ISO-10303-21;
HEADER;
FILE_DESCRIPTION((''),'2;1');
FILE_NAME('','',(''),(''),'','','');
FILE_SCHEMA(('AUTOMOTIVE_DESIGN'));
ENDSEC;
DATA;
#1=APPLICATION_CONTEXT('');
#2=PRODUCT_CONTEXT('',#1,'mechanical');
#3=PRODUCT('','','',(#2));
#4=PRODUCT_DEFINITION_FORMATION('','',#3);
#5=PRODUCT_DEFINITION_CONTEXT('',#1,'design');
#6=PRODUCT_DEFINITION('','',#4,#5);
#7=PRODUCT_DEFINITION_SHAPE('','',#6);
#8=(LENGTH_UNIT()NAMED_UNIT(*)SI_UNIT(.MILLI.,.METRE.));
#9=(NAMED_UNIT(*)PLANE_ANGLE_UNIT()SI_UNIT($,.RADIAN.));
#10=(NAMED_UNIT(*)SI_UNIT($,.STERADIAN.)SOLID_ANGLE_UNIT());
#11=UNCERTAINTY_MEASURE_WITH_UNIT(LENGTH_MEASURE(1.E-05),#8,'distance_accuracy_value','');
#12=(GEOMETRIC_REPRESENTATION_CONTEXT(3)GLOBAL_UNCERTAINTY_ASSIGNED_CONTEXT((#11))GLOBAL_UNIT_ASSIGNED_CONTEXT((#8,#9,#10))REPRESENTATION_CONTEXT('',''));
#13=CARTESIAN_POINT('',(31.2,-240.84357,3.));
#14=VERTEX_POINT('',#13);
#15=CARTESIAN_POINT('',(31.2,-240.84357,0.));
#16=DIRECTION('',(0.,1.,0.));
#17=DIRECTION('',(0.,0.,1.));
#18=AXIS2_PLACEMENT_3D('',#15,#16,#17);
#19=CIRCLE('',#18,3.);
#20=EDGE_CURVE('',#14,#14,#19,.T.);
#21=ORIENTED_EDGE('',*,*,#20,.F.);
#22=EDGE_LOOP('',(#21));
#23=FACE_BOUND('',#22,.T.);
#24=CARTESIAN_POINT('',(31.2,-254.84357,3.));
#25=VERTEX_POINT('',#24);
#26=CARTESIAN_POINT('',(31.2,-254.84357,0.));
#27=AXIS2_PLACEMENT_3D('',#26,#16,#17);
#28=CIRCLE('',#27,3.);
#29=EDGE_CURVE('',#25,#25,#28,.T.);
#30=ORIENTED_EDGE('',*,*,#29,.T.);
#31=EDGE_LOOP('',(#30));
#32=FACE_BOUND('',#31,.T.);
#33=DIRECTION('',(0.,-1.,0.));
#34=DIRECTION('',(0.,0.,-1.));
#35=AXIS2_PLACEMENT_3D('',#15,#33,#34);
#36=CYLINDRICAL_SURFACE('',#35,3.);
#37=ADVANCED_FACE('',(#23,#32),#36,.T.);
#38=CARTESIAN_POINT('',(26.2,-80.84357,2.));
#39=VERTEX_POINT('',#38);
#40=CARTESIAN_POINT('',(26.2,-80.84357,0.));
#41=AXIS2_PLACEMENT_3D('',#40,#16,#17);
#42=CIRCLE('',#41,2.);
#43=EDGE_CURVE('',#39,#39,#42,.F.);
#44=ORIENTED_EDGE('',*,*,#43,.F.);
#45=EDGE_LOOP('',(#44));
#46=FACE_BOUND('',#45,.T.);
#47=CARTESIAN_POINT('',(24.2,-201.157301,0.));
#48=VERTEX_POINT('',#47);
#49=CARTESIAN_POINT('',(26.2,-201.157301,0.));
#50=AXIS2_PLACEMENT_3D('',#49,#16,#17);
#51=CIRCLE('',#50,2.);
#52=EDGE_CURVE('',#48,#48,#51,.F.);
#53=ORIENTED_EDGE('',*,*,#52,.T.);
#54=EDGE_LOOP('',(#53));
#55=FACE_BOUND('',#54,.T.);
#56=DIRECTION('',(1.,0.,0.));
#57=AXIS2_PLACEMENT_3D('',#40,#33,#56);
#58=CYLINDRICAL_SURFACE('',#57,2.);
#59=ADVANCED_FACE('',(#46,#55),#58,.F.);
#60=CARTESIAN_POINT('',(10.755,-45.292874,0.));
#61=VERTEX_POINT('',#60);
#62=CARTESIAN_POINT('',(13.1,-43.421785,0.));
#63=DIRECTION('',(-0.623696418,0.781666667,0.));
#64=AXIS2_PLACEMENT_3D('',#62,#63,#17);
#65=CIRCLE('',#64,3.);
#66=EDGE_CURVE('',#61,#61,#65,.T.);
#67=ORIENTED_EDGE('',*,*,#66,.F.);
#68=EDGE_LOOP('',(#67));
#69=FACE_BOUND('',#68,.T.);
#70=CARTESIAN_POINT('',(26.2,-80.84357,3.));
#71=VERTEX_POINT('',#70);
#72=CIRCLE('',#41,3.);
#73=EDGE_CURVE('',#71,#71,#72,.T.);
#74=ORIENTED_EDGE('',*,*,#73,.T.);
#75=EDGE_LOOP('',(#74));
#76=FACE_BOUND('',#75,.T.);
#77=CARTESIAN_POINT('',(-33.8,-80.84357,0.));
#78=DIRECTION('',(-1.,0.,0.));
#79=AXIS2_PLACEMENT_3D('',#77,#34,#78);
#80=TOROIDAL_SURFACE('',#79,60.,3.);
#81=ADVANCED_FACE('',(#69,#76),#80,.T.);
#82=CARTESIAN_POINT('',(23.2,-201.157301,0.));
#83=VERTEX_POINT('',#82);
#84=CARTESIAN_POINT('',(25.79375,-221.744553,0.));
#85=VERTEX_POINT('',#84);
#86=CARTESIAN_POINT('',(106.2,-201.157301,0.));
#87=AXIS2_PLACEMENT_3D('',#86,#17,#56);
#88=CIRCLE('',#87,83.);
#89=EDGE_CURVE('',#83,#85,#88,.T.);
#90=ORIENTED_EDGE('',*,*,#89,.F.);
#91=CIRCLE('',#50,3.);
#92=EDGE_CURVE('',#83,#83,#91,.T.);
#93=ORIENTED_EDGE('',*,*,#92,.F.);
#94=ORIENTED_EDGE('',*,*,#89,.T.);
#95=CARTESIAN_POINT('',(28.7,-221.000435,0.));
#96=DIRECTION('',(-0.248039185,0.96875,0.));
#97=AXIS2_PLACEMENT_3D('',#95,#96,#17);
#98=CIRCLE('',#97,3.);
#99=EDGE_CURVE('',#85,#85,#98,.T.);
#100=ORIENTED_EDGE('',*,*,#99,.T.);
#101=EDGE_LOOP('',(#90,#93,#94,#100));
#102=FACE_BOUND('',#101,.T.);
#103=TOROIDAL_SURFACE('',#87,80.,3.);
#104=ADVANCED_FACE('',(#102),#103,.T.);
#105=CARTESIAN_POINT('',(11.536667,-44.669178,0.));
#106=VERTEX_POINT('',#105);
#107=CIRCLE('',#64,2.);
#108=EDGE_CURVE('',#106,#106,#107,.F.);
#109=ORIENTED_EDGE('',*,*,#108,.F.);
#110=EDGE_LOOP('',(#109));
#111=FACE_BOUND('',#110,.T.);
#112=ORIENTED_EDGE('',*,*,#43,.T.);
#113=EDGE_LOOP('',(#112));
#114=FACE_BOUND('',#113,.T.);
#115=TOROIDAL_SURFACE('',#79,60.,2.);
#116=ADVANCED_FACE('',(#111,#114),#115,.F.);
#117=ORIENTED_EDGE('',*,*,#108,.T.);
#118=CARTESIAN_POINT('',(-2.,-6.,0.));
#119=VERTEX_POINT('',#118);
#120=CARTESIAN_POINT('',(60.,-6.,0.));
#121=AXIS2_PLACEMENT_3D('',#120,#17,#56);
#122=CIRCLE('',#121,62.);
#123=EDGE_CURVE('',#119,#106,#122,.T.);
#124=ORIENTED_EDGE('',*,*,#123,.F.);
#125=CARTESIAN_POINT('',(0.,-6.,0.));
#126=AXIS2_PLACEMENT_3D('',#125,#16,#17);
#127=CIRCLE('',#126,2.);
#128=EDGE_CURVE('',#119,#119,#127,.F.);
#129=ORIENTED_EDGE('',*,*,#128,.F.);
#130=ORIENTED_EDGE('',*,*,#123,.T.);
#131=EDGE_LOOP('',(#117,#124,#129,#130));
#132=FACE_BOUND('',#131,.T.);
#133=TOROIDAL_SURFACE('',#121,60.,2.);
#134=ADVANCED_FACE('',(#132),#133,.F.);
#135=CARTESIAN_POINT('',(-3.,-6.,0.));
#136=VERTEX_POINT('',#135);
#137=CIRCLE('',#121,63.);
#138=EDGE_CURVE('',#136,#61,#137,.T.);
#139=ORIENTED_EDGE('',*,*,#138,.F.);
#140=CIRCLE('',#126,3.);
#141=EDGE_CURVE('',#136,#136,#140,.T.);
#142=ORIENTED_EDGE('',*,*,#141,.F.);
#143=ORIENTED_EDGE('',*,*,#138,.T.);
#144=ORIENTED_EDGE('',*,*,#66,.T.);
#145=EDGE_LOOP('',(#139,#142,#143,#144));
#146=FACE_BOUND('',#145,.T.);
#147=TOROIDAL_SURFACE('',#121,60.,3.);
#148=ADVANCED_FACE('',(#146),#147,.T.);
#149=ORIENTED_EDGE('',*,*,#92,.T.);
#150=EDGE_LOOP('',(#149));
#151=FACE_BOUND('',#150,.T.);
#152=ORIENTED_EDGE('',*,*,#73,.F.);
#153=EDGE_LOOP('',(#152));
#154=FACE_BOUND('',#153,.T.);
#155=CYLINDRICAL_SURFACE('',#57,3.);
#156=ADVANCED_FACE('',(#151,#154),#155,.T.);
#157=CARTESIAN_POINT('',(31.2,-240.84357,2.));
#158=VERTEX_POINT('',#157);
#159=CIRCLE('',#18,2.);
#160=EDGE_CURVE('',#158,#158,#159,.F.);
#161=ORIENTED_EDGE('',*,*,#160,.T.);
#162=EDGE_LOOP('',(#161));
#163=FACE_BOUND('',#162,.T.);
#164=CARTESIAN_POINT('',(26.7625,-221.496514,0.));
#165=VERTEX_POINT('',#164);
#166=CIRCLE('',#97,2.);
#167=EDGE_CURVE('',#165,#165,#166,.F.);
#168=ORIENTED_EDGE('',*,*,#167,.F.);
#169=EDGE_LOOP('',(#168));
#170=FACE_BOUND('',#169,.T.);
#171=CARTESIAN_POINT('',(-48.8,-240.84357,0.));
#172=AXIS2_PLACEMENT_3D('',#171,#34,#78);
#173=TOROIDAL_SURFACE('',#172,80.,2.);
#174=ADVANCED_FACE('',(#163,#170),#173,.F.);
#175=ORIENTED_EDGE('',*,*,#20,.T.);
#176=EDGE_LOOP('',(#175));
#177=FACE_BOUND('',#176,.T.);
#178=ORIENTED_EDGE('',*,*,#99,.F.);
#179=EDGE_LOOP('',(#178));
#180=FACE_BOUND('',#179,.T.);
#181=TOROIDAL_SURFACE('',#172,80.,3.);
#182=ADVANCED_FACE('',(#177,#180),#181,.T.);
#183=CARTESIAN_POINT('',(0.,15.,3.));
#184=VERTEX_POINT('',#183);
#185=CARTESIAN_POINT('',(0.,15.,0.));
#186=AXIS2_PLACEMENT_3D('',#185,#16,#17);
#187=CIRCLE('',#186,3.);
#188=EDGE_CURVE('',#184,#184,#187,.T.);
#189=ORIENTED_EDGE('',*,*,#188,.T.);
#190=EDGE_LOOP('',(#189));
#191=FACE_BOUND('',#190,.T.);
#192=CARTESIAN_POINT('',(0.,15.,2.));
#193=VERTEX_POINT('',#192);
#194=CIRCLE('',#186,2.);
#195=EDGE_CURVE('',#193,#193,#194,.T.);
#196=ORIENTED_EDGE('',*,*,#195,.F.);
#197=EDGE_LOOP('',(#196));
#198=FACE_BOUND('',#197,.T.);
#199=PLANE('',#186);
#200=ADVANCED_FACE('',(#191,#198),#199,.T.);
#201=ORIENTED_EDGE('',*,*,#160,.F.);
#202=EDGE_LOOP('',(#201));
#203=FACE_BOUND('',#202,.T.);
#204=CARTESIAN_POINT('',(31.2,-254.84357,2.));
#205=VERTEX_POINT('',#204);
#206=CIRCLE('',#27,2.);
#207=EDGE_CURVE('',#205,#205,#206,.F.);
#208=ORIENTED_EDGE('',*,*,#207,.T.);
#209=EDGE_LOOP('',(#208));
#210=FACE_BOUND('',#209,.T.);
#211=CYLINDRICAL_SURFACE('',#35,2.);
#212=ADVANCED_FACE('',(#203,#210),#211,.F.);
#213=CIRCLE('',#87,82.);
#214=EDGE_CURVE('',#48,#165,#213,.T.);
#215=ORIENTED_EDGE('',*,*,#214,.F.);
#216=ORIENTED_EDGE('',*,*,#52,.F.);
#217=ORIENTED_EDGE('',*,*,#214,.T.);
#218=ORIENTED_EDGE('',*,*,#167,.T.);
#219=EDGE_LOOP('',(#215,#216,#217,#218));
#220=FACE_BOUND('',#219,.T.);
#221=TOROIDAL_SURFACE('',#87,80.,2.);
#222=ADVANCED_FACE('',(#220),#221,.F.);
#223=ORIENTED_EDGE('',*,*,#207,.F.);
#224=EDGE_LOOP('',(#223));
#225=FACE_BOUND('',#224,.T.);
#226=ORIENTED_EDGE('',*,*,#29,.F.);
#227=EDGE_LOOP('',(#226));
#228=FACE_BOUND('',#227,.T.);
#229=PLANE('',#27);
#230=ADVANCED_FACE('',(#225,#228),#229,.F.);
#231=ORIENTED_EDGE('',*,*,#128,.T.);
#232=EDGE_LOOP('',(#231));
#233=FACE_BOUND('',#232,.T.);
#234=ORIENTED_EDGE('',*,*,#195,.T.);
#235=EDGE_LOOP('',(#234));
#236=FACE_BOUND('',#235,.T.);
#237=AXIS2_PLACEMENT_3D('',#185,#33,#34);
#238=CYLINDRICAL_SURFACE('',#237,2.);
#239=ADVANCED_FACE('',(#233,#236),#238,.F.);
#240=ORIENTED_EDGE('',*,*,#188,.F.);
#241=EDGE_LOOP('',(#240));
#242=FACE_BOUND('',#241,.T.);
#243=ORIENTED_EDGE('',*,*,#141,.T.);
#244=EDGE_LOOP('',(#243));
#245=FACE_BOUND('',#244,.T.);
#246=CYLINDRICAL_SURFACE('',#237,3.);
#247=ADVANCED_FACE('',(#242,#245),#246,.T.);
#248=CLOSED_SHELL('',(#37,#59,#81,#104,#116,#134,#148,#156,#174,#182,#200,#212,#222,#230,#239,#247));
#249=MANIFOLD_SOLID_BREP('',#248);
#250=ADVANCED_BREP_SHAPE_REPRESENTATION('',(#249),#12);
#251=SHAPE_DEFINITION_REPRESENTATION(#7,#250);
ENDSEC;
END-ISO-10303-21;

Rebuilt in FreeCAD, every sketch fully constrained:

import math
import FreeCAD as App
import Part
import Sketcher

V = App.Vector
Q = App.Units.Quantity

doc = App.newDocument("Part")
body = doc.addObject("PartDesign::Body", "Body")

sketch1 = body.newObject("Sketcher::SketchObject", "Sketch")
sketch1.AttachmentSupport = (doc.getObject("XZ_Plane"), [""])
sketch1.MapMode = "FlatFace"
sketch1.addGeometry([
    Part.Circle(V(0, 0, 0), V(0, 0, 1), 3),
    Part.Circle(V(0, 0, 0), V(0, 0, 1), 2),
], False)
sketch1.addConstraint([
    Sketcher.Constraint("Coincident", 0, 3, -1, 1),
    Sketcher.Constraint("Coincident", 1, 3, -1, 1),
    Sketcher.Constraint("Diameter", 0, Q("6 mm")),
    Sketcher.Constraint("Diameter", 1, Q("4 mm")),
])
pad1 = body.newObject("PartDesign::Pad", "Pad")
pad1.Profile = sketch1
pad1.Length = 15
pad1.Reversed = True

sketch2 = body.newObject("Sketcher::SketchObject", "Sketch001")
sketch2.AttachmentSupport = (doc.getObject("XZ_Plane"), [""])
sketch2.MapMode = "FlatFace"
sketch2.addGeometry([
    Part.Circle(V(0, 0, 0), V(0, 0, 1), 3),
    Part.Circle(V(0, 0, 0), V(0, 0, 1), 2),
], False)
sketch2.addConstraint([
    Sketcher.Constraint("Coincident", 0, 3, -1, 1),
    Sketcher.Constraint("Coincident", 1, 3, -1, 1),
    Sketcher.Constraint("Diameter", 0, Q("6 mm")),
    Sketcher.Constraint("Diameter", 1, Q("4 mm")),
])

sketch3 = body.newObject("Sketcher::SketchObject", "Sketch002")
sketch3.AttachmentSupport = (doc.getObject("XY_Plane"), [""])
sketch3.MapMode = "FlatFace"
sketch3.addGeometry([
    Part.LineSegment(V(0, 0, 0), V(0, -6, 0)),
    Part.ArcOfCircle(Part.Circle(V(60, -6, 0), V(0, 0, 1), 60), math.radians(180), math.radians(218.586572)),
    Part.ArcOfCircle(Part.Circle(V(-33.8, -80.84357, 0), V(0, 0, 1), 60), math.radians(0), math.radians(38.586572)),
    Part.LineSegment(V(26.2, -80.84357, 0), V(26.2, -201.157301, 0)),
    Part.ArcOfCircle(Part.Circle(V(106.2, -201.157301, 0), V(0, 0, 1), 80), math.radians(180), math.radians(194.361512)),
    Part.ArcOfCircle(Part.Circle(V(-48.8, -240.84357, 0), V(0, 0, 1), 80), math.radians(0), math.radians(14.361512)),
    Part.LineSegment(V(31.2, -240.84357, 0), V(31.2, -254.84357, 0)),
], False)
sketch3.addConstraint([
    Sketcher.Constraint("Tangent", 0, 2, 1, 1),
    Sketcher.Constraint("Tangent", 1, 2, 2, 2),
    Sketcher.Constraint("Tangent", 2, 1, 3, 1),
    Sketcher.Constraint("Tangent", 3, 2, 4, 1),
    Sketcher.Constraint("Tangent", 4, 2, 5, 2),
    Sketcher.Constraint("Tangent", 5, 1, 6, 1),
    Sketcher.Constraint("Vertical", 0),
    Sketcher.Constraint("Vertical", 3),
    Sketcher.Constraint("Vertical", 6),
    Sketcher.Constraint("Coincident", 0, 1, -1, 1),
    Sketcher.Constraint("Equal", 1, 2),
    Sketcher.Constraint("Equal", 4, 5),
    Sketcher.Constraint("Radius", 1, Q("60 mm")),
    Sketcher.Constraint("Radius", 4, Q("80 mm")),
    Sketcher.Constraint("DistanceY", 0, 2, 0, 1, Q("6 mm")),
    Sketcher.Constraint("DistanceY", 6, 2, 6, 1, Q("14 mm")),
    Sketcher.Constraint("DistanceX", 5, 3, 4, 3, Q("155 mm")),
    Sketcher.Constraint("DistanceY", 5, 3, 2, 3, Q("160 mm")),
    Sketcher.Constraint("DistanceX", 2, 3, -1, 1, Q("33.8 mm")),
])
doc.recompute()

additivepipe = body.newObject("PartDesign::AdditivePipe", "AdditivePipe")
additivepipe.Profile = sketch2
additivepipe.Spine = (sketch3, ["Edge1", "Edge2", "Edge3", "Edge4", "Edge5", "Edge6", "Edge7"])

doc.recompute()
